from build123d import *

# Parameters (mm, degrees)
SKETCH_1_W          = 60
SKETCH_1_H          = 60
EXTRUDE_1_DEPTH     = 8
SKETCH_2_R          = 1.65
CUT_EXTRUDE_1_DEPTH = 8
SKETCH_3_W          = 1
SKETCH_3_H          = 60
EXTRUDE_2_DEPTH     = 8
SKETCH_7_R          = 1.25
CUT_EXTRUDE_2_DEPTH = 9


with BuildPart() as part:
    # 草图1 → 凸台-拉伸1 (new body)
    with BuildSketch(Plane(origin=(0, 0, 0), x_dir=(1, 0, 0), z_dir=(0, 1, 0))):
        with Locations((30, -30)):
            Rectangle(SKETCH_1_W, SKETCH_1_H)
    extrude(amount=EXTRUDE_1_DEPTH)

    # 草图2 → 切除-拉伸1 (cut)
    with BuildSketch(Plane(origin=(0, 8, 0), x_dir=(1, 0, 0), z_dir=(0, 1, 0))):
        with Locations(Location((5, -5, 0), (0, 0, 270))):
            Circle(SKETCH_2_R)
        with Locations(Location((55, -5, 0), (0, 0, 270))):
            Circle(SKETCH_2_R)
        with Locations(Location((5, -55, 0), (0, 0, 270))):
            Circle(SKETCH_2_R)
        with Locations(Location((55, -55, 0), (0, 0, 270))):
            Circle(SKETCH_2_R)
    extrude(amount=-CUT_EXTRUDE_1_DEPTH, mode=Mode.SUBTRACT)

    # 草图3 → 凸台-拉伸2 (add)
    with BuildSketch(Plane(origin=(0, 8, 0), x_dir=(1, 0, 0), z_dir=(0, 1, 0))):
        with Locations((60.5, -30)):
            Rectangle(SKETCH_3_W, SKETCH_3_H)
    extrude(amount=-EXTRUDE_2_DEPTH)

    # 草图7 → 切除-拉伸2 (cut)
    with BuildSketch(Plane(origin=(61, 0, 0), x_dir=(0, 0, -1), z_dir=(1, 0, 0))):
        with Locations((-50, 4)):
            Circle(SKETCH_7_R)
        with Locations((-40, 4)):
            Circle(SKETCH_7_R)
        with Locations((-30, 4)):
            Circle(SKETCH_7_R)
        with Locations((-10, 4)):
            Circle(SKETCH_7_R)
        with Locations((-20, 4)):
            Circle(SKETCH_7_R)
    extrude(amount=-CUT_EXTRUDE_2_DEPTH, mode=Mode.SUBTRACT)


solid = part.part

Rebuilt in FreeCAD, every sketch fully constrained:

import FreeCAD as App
import Part
import Sketcher

V = App.Vector
Q = App.Units.Quantity


def add_polygon(sketch, points):
    """Adds a closed chain of lines whose ends are joined by coincident constraints."""
    first, n = sketch.GeometryCount, len(points)
    for a, b in zip(points, points[1:] + points[:1]):
        sketch.addGeometry(Part.LineSegment(App.Vector(*a, 0), App.Vector(*b, 0)), False)
    for i in range(n):
        sketch.addConstraint(Sketcher.Constraint("Coincident", first + i, 2, first + (i + 1) % n, 1))

doc = App.newDocument("Part")
body = doc.addObject("PartDesign::Body", "Body")

# Sketch on XZ plane
sketch1 = body.newObject("Sketcher::SketchObject", "Sketch")
sketch1.AttachmentSupport = (doc.getObject("XZ_Plane"), [""])
sketch1.MapMode = "FlatFace"
add_polygon(sketch1, [(0, 0), (0, 60), (60, 60), (60, 0)])  # lines 0-3
sketch1.addConstraint([
    Sketcher.Constraint("Vertical", 0),
    Sketcher.Constraint("Horizontal", 1),
    Sketcher.Constraint("Vertical", 2),
    Sketcher.Constraint("Horizontal", 3),
    Sketcher.Constraint("Coincident", 3, 2, -1, 1),
    Sketcher.Constraint("Equal", 3, 0),
    Sketcher.Constraint("DistanceX", 1, 1, 1, 2, Q("60 mm")),
])
pad1 = body.newObject("PartDesign::Pad", "Pad")
pad1.Profile = sketch1
pad1.Length = 8
pad1.Reversed = True

# Sketch on XZ plane
sketch2 = body.newObject("Sketcher::SketchObject", "Sketch001")
sketch2.AttachmentSupport = (doc.getObject("XZ_Plane"), [""])
sketch2.MapMode = "FlatFace"
sketch2.AttachmentOffset = App.Placement(V(0, 0, -8), App.Rotation())
sketch2.addGeometry([
    Part.Circle(V(5, 5, 0), V(0, 0, 1), 1.6),
    Part.Circle(V(55, 5, 0), V(0, 0, 1), 1.6),
    Part.Circle(V(5, 55, 0), V(0, 0, 1), 1.6),
    Part.Circle(V(55, 55, 0), V(0, 0, 1), 1.6),
], False)
sketch2.addConstraint([
    Sketcher.Constraint("Equal", 0, 1),
    Sketcher.Constraint("Equal", 1, 2),
    Sketcher.Constraint("Equal", 2, 3),
    Sketcher.Constraint("Horizontal", 0, 3, 1, 3),
    Sketcher.Constraint("Horizontal", 2, 3, 3, 3),
    Sketcher.Constraint("Vertical", 0, 3, 2, 3),
    Sketcher.Constraint("Vertical", 1, 3, 3, 3),
    Sketcher.Constraint("Diameter", 0, Q("3.3 mm")),
    Sketcher.Constraint("DistanceX", -1, 1, 0, 3, Q("5 mm")),
    Sketcher.Constraint("DistanceY", -1, 1, 0, 3, Q("5 mm")),
    Sketcher.Constraint("DistanceX", -1, 1, 1, 3, Q("55 mm")),
    Sketcher.Constraint("DistanceY", -1, 1, 2, 3, Q("55 mm")),
])
pocket1 = body.newObject("PartDesign::Pocket", "Pocket")
pocket1.Profile = sketch2
pocket1.Length = 8
pocket1.Reversed = True

# Sketch on XZ plane
sketch3 = body.newObject("Sketcher::SketchObject", "Sketch002")
sketch3.AttachmentSupport = (doc.getObject("XZ_Plane"), [""])
sketch3.MapMode = "FlatFace"
sketch3.AttachmentOffset = App.Placement(V(0, 0, -8), App.Rotation())
add_polygon(sketch3, [(60, 0), (60, 60), (61, 60), (61, 0)])  # lines 0-3
sketch3.addConstraint([
    Sketcher.Constraint("Vertical", 0),
    Sketcher.Constraint("Horizontal", 1),
    Sketcher.Constraint("Vertical", 2),
    Sketcher.Constraint("Horizontal", 3),
    Sketcher.Constraint("PointOnObject", 2, 2, -1),
    Sketcher.Constraint("DistanceX", 1, 1, 1, 2, Q("1 mm")),
    Sketcher.Constraint("DistanceY", 0, 1, 0, 2, Q("60 mm")),
    Sketcher.Constraint("DistanceX", -1, 1, 0, 2, Q("60 mm")),
])
pad2 = body.newObject("PartDesign::Pad", "Pad001")
pad2.Profile = sketch3
pad2.Length = 8

# Sketch on YZ plane
sketch4 = body.newObject("Sketcher::SketchObject", "Sketch003")
sketch4.AttachmentSupport = (doc.getObject("YZ_Plane"), [""])
sketch4.MapMode = "FlatFace"
sketch4.AttachmentOffset = App.Placement(V(0, 0, 61), App.Rotation())
sketch4.addGeometry([
    Part.Circle(V(4, 50, 0), V(0, 0, 1), 1.2),  # 0
    Part.Circle(V(4, 40, 0), V(0, 0, 1), 1.2),  # 1
    Part.Circle(V(4, 30, 0), V(0, 0, 1), 1.2),  # 2
    Part.Circle(V(4, 10, 0), V(0, 0, 1), 1.2),  # 3
    Part.Circle(V(4, 20, 0), V(0, 0, 1), 1.2),  # 4
], False)
sketch4.addConstraint([
    Sketcher.Constraint("Equal", 0, 1),
    Sketcher.Constraint("Equal", 1, 2),
    Sketcher.Constraint("Equal", 2, 3),
    Sketcher.Constraint("Equal", 3, 4),
    Sketcher.Constraint("Vertical", 0, 3, 1, 3),
    Sketcher.Constraint("Vertical", 1, 3, 2, 3),
    Sketcher.Constraint("Vertical", 2, 3, 3, 3),
    Sketcher.Constraint("Vertical", 3, 3, 4, 3),
    Sketcher.Constraint("Diameter", 0, Q("2.5 mm")),
    Sketcher.Constraint("DistanceX", -1, 1, 0, 3, Q("4 mm")),
    Sketcher.Constraint("DistanceY", -1, 1, 0, 3, Q("50 mm")),
    Sketcher.Constraint("DistanceY", -1, 1, 1, 3, Q("40 mm")),
    Sketcher.Constraint("DistanceY", -1, 1, 2, 3, Q("30 mm")),
    Sketcher.Constraint("DistanceY", -1, 1, 3, 3, Q("10 mm")),
    Sketcher.Constraint("DistanceY", -1, 1, 4, 3, Q("20 mm")),
])
pocket2 = body.newObject("PartDesign::Pocket", "Pocket001")
pocket2.Profile = sketch4
pocket2.Length = 9

doc.recompute()
